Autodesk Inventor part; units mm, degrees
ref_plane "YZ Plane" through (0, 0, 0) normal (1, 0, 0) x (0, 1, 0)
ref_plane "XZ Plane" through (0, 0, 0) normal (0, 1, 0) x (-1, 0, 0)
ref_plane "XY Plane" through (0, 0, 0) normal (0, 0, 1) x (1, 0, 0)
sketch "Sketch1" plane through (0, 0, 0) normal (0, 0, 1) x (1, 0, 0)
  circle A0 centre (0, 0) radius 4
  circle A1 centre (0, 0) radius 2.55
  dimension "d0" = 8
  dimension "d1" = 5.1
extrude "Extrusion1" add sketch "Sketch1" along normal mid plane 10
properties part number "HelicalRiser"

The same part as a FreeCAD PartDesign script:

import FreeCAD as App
import Part
import Sketcher

V = App.Vector
Q = App.Units.Quantity

doc = App.newDocument("Part")
body = doc.addObject("PartDesign::Body", "Body")

sketch1 = doc.addObject("Sketcher::SketchObject", "Sketch")
body.addObject(sketch1)
sketch1.AttachmentSupport = (doc.XY_Plane, [""])
sketch1.MapMode = "FlatFace"
sketch1.addGeometry([
    Part.Circle(V(0, 0, 0), V(0, 0, 1), 4),
    Part.Circle(V(0, 0, 0), V(0, 0, 1), 2.55),
], False)
sketch1.addConstraint([
    Sketcher.Constraint("Coincident", 0, 3, -1, 1),
    Sketcher.Constraint("Coincident", 1, 3, -1, 1),
    Sketcher.Constraint("Diameter", 0, Q("8 mm")),
    Sketcher.Constraint("Diameter", 1, Q("5.1 mm")),
])
pad1 = doc.addObject("PartDesign::Pad", "Pad")
body.addObject(pad1)
pad1.Profile = sketch1
pad1.Length = 10
pad1.Midplane = True

doc.recompute()
